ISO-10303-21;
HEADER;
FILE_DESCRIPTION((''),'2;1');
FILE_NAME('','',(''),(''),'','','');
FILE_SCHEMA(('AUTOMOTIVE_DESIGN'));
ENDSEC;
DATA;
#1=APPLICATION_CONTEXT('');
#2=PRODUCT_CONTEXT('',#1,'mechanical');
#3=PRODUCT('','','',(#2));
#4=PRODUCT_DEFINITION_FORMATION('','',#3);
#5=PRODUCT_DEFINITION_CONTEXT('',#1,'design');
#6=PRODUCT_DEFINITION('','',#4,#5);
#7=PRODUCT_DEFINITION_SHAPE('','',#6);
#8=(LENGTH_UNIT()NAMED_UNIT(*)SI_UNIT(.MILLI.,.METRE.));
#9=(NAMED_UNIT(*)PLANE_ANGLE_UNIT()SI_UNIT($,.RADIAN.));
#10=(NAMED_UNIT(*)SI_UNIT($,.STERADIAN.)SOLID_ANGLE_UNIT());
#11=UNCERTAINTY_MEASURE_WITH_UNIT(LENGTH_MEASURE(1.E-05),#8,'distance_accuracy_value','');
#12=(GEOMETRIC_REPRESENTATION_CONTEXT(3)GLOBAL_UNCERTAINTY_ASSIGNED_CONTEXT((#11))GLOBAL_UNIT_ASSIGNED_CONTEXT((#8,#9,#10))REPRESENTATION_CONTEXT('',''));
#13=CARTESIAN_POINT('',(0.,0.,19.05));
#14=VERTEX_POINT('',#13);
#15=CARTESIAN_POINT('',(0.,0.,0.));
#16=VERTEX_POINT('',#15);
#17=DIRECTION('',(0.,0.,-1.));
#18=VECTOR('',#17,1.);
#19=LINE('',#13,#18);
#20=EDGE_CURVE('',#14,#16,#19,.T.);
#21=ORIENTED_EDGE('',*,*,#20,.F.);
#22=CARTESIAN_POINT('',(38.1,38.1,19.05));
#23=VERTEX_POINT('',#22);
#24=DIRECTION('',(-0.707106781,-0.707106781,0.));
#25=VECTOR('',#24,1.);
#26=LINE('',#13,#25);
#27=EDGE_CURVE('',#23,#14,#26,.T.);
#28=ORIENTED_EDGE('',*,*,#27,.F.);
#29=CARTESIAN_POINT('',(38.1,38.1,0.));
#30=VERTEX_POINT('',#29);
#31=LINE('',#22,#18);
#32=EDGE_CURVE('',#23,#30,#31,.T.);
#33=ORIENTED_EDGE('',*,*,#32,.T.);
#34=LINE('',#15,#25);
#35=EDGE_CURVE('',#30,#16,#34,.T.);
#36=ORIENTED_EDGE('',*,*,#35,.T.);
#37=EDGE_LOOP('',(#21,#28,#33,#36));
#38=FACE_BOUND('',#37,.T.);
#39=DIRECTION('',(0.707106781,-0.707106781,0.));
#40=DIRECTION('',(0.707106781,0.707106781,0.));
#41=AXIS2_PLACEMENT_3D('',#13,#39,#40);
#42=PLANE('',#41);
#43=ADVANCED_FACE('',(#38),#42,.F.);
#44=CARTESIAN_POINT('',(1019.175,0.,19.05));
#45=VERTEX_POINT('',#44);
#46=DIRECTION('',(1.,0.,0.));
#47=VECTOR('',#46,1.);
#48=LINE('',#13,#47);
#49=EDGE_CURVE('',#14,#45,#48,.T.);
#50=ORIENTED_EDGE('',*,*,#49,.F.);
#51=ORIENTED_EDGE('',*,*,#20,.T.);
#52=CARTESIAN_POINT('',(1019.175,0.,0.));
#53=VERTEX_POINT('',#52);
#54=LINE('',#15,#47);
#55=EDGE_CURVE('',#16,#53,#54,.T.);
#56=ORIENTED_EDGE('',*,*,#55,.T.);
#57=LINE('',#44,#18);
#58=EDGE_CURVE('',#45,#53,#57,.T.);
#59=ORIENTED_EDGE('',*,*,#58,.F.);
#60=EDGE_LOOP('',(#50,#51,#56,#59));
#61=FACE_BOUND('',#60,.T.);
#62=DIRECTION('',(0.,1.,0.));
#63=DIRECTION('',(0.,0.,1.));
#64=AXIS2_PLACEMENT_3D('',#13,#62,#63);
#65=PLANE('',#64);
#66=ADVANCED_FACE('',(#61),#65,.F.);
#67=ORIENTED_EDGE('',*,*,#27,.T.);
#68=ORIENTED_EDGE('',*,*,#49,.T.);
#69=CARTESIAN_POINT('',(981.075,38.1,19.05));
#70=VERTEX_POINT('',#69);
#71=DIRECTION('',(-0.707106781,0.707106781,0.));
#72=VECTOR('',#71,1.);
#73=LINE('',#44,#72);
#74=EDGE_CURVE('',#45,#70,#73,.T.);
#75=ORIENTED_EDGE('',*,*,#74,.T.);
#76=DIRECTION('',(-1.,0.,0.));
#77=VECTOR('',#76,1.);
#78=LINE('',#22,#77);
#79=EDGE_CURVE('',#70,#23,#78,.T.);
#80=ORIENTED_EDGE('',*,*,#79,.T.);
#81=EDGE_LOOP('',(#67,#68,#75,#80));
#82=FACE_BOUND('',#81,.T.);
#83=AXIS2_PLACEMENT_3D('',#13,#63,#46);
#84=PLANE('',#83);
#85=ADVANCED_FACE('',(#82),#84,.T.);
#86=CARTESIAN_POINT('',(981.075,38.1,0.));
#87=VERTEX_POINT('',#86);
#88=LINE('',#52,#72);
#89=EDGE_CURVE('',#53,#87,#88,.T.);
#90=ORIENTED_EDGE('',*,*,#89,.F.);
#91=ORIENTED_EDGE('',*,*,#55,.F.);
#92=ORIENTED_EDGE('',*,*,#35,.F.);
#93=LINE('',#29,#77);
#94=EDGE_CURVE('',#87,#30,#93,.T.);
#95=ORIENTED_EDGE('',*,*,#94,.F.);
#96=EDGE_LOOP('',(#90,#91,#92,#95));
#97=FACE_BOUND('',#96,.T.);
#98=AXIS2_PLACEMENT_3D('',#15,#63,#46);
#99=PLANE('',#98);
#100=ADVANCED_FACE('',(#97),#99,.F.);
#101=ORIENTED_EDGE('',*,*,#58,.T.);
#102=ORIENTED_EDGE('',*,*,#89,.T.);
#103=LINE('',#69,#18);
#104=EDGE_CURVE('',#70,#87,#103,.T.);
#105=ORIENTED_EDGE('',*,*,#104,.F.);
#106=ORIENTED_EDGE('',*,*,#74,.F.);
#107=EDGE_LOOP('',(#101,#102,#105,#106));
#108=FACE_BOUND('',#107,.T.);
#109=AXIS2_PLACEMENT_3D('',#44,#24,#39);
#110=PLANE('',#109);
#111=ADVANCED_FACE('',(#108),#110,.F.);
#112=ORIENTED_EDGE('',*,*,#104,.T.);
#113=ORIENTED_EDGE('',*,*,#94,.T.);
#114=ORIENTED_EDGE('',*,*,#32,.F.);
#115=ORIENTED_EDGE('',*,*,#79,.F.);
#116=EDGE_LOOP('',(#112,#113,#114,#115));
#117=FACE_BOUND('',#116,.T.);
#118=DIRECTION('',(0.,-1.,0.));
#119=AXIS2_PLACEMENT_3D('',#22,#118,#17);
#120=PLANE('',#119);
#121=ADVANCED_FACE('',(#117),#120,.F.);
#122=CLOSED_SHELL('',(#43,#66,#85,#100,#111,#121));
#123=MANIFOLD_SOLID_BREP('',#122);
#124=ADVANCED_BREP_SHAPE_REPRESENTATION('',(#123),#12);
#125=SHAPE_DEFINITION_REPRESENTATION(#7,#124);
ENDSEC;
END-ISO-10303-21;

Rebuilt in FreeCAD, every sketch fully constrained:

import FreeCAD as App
import Part
import Sketcher

V = App.Vector
Q = App.Units.Quantity


def add_polygon(sketch, points):
    """Adds a closed chain of lines whose ends are joined by coincident constraints."""
    first, n = sketch.GeometryCount, len(points)
    for a, b in zip(points, points[1:] + points[:1]):
        sketch.addGeometry(Part.LineSegment(App.Vector(*a, 0), App.Vector(*b, 0)), False)
    for i in range(n):
        sketch.addConstraint(Sketcher.Constraint("Coincident", first + i, 2, first + (i + 1) % n, 1))

doc = App.newDocument("Part")
body = doc.addObject("PartDesign::Body", "Body")

# Sketch on XY plane
sketch1 = body.newObject("Sketcher::SketchObject", "Sketch")
sketch1.AttachmentSupport = (doc.getObject("XY_Plane"), [""])
sketch1.MapMode = "FlatFace"
add_polygon(sketch1, [(38.1, 38.1), (0, 0), (1019.175, 0), (981.075, 38.1)])  # lines 0-3
sketch1.addConstraint([
    Sketcher.Constraint("Horizontal", 1),
    Sketcher.Constraint("Horizontal", 3),
    Sketcher.Constraint("Coincident", 0, 2, -1, 1),
    Sketcher.Constraint("Perpendicular", 0, 2),
    Sketcher.Constraint("Equal", 0, 2),
    Sketcher.Constraint("DistanceY", -1, 1, 2, 2, Q("1.5 in")),
    Sketcher.Constraint("DistanceX", 1, 1, 1, 2, Q("40.125 in")),
])
pad1 = body.newObject("PartDesign::Pad", "Pad")
pad1.Profile = sketch1
pad1.Length = Q("0.75 in")

doc.recompute()
